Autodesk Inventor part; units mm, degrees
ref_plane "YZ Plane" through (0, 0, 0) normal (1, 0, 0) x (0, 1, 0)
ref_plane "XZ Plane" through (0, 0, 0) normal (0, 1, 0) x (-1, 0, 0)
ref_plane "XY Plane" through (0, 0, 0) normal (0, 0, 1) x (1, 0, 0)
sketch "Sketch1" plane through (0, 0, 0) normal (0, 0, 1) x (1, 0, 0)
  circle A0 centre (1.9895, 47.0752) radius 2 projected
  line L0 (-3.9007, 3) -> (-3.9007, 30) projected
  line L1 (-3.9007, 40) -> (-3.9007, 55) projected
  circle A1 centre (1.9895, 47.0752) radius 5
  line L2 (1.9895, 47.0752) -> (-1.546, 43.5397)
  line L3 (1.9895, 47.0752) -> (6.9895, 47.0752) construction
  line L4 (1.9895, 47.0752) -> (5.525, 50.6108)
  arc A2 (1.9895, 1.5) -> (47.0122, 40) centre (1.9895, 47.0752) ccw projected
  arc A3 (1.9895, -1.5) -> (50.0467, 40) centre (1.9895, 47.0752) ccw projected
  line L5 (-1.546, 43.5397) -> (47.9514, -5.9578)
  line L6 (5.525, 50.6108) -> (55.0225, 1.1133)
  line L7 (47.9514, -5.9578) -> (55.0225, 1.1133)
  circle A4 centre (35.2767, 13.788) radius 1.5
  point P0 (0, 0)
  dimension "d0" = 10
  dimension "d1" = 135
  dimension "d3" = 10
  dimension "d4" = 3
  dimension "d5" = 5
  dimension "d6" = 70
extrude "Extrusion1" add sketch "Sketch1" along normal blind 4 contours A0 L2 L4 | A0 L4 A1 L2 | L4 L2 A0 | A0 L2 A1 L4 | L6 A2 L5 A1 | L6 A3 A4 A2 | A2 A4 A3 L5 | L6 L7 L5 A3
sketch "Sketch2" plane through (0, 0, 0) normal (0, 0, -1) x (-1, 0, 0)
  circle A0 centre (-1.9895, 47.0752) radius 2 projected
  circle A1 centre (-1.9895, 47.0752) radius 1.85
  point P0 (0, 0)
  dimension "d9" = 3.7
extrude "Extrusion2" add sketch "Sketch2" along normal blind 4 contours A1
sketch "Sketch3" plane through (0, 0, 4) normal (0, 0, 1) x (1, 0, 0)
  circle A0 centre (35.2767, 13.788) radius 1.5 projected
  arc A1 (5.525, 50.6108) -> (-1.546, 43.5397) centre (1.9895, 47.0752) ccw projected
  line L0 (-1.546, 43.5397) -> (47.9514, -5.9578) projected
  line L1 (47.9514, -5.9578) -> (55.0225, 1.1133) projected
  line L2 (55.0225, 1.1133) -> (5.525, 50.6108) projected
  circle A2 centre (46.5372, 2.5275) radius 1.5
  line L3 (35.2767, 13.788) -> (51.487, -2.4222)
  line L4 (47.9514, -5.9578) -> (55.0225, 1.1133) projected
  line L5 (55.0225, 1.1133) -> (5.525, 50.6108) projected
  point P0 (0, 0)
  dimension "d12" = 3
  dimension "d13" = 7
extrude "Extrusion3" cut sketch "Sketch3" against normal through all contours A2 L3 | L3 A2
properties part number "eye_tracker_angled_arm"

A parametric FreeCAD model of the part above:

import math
import FreeCAD as App
import Part
import Sketcher
Q = App.Units.Quantity

doc = App.newDocument("Part")
params = doc.addObject("Spreadsheet::Sheet", "Params")
for row, (alias, value) in enumerate([
    ("sketch1_diameter", "3 mm"),
    ("sketch1_radius", "5 mm"),
    ("sketch1_length", "70 mm"),
    ("pad1_length", "4 mm"),
    ("sketch2_diameter", "3.7 mm"),
    ("pad2_length", "4 mm"),
    ("sketch3_diameter", "3 mm"),
], start=1):
    params.set(f"A{row}", alias)
    params.set(f"B{row}", "=" + value)
    params.setAlias(f"B{row}", alias)

body = doc.addObject("PartDesign::Body", "Body")

sketch1 = body.newObject("Sketcher::SketchObject", "Sketch")
sketch1.AttachmentSupport = (doc.getObject("XY_Plane"), [""])
sketch1.MapMode = "FlatFace"
sketch1.addGeometry([
    Part.ArcOfCircle(Part.Circle(App.Vector(2, 47.1, 0), App.Vector(0, 0, 1), 5), math.radians(45), math.radians(225)),
    Part.LineSegment(App.Vector(-1.5, 43.5, 0), App.Vector(48, -6, 0)),
    Part.LineSegment(App.Vector(48, -6, 0), App.Vector(55, 1.1, 0)),
    Part.LineSegment(App.Vector(55, 1.1, 0), App.Vector(5.5, 50.6, 0)),
    Part.Circle(App.Vector(35.3, 13.8, 0), App.Vector(0, 0, 1), 1.5),
], False)
sketch1.addConstraint([
    Sketcher.Constraint("Tangent", 0, 2, 1, 1),
    Sketcher.Constraint("Coincident", 1, 2, 2, 1),
    Sketcher.Constraint("Coincident", 2, 2, 3, 1),
    Sketcher.Constraint("Tangent", 3, 2, 0, 1),
    Sketcher.Constraint("Perpendicular", 1, 2),
    Sketcher.Constraint("Perpendicular", 2, 3),
    Sketcher.Constraint("Diameter", 4, Q("3 mm")),
    Sketcher.Constraint("Radius", 0, Q("5 mm")),
    Sketcher.Constraint("Angle", 3, Q("135 deg")),
    Sketcher.Constraint("Distance", 1, Q("70 mm")),
    Sketcher.Constraint("DistanceY", -1, 1, 4, 3, Q("13.788 mm")),
    Sketcher.Constraint("DistanceX", 0, 2, -1, 1, Q("1.546 mm")),
    Sketcher.Constraint("DistanceY", -1, 1, 0, 3, Q("47.0752 mm")),
    Sketcher.Constraint("DistanceX", -1, 1, 4, 3, Q("35.2767 mm")),
])
sketch1.setExpression("Constraints[6]", "Params.sketch1_diameter")
sketch1.setExpression("Constraints[7]", "Params.sketch1_radius")
sketch1.setExpression("Constraints[9]", "Params.sketch1_length")
pad1 = body.newObject("PartDesign::Pad", "Pad")
pad1.Profile = sketch1
pad1.setExpression("Length", "Params.pad1_length")

sketch2 = body.newObject("Sketcher::SketchObject", "Sketch001")
sketch2.AttachmentSupport = (doc.getObject("XY_Plane"), [""])
sketch2.MapMode = "FlatFace"
sketch2.addGeometry(Part.Circle(App.Vector(2, 47.1, 0), App.Vector(0, 0, 1), 1.9), False)
sketch2.addConstraint([
    Sketcher.Constraint("Diameter", 0, Q("3.7 mm")),
    Sketcher.Constraint("DistanceX", -1, 1, 0, 3, Q("1.9895 mm")),
    Sketcher.Constraint("DistanceY", -1, 1, 0, 3, Q("47.0752 mm")),
])
sketch2.setExpression("Constraints[0]", "Params.sketch2_diameter")
pad2 = body.newObject("PartDesign::Pad", "Pad001")
pad2.Profile = sketch2
pad2.setExpression("Length", "Params.pad2_length")
pad2.Reversed = True

sketch3 = body.newObject("Sketcher::SketchObject", "Sketch002")
sketch3.AttachmentSupport = (doc.getObject("XY_Plane"), [""])
sketch3.MapMode = "FlatFace"
sketch3.AttachmentOffset = App.Placement(App.Vector(0, 0, 4), App.Rotation())
sketch3.addGeometry(Part.Circle(App.Vector(46.5, 2.5, 0), App.Vector(0, 0, 1), 1.5), False)
sketch3.addConstraint([
    Sketcher.Constraint("Diameter", 0, Q("3 mm")),
    Sketcher.Constraint("DistanceX", -1, 1, 0, 3, Q("46.5372 mm")),
    Sketcher.Constraint("DistanceY", -1, 1, 0, 3, Q("2.5275 mm")),
])
sketch3.setExpression("Constraints[0]", "Params.sketch3_diameter")
pocket1 = body.newObject("PartDesign::Pocket", "Pocket")
pocket1.Profile = sketch3
pocket1.Type = "ThroughAll"

doc.recompute()
